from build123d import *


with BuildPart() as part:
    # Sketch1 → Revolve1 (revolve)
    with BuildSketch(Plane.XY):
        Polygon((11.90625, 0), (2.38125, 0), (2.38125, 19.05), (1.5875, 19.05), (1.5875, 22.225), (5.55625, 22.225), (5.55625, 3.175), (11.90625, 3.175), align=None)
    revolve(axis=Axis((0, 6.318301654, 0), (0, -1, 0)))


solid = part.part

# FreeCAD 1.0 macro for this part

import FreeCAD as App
import Part
import Sketcher
from FreeCAD import Vector
Q = App.Units.Quantity

doc = App.newDocument("Part")
body = doc.addObject("PartDesign::Body", "Body")

sketch1 = body.newObject("Sketcher::SketchObject", "Sketch")
sketch1.AttachmentSupport = (doc.getObject("XY_Plane"), [""])
sketch1.MapMode = "FlatFace"
sketch1.addGeometry([
    Part.LineSegment(Vector(2.38125, 0, 0), Vector(11.90625, 0, 0)),
    Part.LineSegment(Vector(11.90625, 0, 0), Vector(11.90625, 3.175, 0)),
    Part.LineSegment(Vector(11.90625, 3.175, 0), Vector(5.55625, 3.175, 0)),
    Part.LineSegment(Vector(5.55625, 3.175, 0), Vector(5.55625, 22.225, 0)),
    Part.LineSegment(Vector(5.55625, 22.225, 0), Vector(1.5875, 22.225, 0)),
    Part.LineSegment(Vector(1.5875, 22.225, 0), Vector(1.5875, 19.05, 0)),
    Part.LineSegment(Vector(1.5875, 19.05, 0), Vector(2.38125, 19.05, 0)),
    Part.LineSegment(Vector(2.38125, 19.05, 0), Vector(2.38125, 0, 0)),
], False)
sketch1.addConstraint([
    Sketcher.Constraint("Coincident", 0, 2, 1, 1),
    Sketcher.Constraint("Coincident", 1, 2, 2, 1),
    Sketcher.Constraint("Coincident", 2, 2, 3, 1),
    Sketcher.Constraint("Coincident", 3, 2, 4, 1),
    Sketcher.Constraint("Coincident", 4, 2, 5, 1),
    Sketcher.Constraint("Coincident", 5, 2, 6, 1),
    Sketcher.Constraint("Coincident", 6, 2, 7, 1),
    Sketcher.Constraint("Coincident", 7, 2, 0, 1),
    Sketcher.Constraint("Horizontal", 0),
    Sketcher.Constraint("Vertical", 1),
    Sketcher.Constraint("Horizontal", 2),
    Sketcher.Constraint("Vertical", 3),
    Sketcher.Constraint("Horizontal", 4),
    Sketcher.Constraint("Vertical", 5),
    Sketcher.Constraint("Horizontal", 6),
    Sketcher.Constraint("Vertical", 7),
    Sketcher.Constraint("PointOnObject", 0, 2, -1),
    Sketcher.Constraint("Equal", 1, 5),
    Sketcher.Constraint("DistanceX", 2, 2, 2, 1, Q("0.25 in")),
    Sketcher.Constraint("DistanceY", 3, 1, 3, 2, Q("0.75 in")),
    Sketcher.Constraint("DistanceX", 0, 1, 0, 2, Q("0.375 in")),
    Sketcher.Constraint("DistanceX", 4, 2, 4, 1, Q("0.15625 in")),
    Sketcher.Constraint("DistanceY", 1, 1, 1, 2, Q("0.125 in")),
    Sketcher.Constraint("DistanceX", -1, 1, 0, 2, Q("0.46875 in")),
])
revolution = body.newObject("PartDesign::Revolution", "Revolution")
revolution.Profile = sketch1
revolution.ReferenceAxis = (sketch1, ["V_Axis"])
revolution.Angle = 360

doc.recompute()
